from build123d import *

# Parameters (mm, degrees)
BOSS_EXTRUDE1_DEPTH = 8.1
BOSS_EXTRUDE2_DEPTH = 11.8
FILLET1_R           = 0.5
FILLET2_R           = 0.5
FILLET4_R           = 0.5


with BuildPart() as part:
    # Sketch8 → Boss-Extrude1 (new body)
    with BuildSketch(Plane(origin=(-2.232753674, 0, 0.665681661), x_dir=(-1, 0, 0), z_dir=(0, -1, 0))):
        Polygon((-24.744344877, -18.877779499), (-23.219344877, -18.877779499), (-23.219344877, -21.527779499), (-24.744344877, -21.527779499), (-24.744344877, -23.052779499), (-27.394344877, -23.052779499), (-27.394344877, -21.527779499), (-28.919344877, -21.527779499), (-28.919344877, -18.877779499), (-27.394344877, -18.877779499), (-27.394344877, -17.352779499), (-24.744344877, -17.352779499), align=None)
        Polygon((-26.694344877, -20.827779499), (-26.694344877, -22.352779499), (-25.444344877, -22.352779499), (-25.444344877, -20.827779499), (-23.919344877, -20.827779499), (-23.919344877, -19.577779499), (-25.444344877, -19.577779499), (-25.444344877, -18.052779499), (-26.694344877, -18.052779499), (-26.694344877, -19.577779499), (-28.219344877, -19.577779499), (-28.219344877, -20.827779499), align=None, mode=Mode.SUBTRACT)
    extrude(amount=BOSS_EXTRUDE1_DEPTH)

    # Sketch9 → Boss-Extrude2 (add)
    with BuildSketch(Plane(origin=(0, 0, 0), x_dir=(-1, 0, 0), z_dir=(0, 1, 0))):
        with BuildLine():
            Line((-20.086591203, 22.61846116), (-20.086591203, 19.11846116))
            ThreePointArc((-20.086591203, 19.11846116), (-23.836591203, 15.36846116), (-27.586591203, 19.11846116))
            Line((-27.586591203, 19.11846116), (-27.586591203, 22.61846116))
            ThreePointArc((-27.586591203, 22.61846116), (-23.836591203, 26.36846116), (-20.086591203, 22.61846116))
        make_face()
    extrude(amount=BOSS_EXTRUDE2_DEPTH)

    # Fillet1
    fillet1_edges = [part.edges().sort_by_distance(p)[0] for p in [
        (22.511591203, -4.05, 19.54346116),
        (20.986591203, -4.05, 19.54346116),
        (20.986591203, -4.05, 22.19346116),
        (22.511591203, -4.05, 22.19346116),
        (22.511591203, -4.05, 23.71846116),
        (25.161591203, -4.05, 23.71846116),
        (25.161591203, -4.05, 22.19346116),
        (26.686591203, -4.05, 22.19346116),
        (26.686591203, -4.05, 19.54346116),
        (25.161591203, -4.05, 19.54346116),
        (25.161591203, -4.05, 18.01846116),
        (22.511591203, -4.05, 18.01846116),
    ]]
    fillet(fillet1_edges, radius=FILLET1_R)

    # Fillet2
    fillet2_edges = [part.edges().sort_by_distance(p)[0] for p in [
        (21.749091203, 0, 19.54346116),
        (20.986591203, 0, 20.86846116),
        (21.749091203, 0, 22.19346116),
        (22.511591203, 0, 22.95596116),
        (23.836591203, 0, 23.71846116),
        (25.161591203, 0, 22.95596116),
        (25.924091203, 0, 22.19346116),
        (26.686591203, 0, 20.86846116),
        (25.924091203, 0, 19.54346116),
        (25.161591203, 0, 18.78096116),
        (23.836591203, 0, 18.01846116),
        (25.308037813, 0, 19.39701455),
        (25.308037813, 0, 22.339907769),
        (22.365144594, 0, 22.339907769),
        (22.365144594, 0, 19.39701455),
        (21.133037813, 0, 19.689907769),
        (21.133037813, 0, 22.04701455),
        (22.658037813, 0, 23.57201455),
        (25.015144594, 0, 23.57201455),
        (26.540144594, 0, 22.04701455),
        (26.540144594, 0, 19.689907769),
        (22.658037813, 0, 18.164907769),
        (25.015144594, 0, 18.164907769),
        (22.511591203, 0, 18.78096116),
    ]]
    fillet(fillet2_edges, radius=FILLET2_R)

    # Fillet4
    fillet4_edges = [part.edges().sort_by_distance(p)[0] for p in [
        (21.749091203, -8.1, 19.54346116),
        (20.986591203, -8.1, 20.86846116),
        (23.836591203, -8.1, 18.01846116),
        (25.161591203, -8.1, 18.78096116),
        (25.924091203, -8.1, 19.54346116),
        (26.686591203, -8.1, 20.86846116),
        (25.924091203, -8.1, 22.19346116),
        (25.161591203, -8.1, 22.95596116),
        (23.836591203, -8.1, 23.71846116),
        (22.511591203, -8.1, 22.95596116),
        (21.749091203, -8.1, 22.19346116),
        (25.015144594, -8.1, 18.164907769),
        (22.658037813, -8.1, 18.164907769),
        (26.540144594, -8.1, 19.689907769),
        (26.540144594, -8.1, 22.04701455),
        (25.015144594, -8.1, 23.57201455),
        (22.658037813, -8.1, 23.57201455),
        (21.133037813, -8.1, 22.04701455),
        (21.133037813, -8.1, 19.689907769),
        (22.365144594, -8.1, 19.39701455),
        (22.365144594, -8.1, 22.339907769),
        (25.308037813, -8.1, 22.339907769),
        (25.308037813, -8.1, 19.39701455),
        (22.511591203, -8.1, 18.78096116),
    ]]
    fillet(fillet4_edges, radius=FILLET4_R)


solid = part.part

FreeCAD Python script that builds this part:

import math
import FreeCAD as App
import Part
import Sketcher
from FreeCAD import Vector
Q = App.Units.Quantity


def edges_at(feature, points):
    """Names of the edges that pass closest to the given points."""
    edges = feature.Shape.Edges
    near = lambda p: min(range(len(edges)), key=lambda i: edges[i].distToShape(Part.Vertex(*p))[0])
    return sorted({f"Edge{near(p) + 1}" for p in points})

doc = App.newDocument("Part")
params = doc.addObject("Spreadsheet::Sheet", "Params")
for row, (alias, value) in enumerate([
    ("sketch1_width", "2.65 mm"),
    ("sketch1_width2", "1.25 mm"),
    ("pad1_length", "8.1 mm"),
    ("sketch2_radius", "3.75 mm"),
    ("sketch2_height", "3.5 mm"),
    ("pad2_length", "11.8 mm"),
    ("fillet_radius", "0.5 mm"),
    ("fillet2_radius", "0.5 mm"),
    ("fillet3_radius", "0.5 mm"),
], start=1):
    params.set(f"A{row}", alias)
    params.set(f"B{row}", "=" + value)
    params.setAlias(f"B{row}", alias)

body = doc.addObject("PartDesign::Body", "Body")

# Sketch on XZ plane
sketch1 = body.newObject("Sketcher::SketchObject", "Sketch")
sketch1.AttachmentSupport = (doc.getObject("XZ_Plane"), [""])
sketch1.MapMode = "FlatFace"
sketch1.addGeometry(Part.LineSegment(Vector(20.986591, 19.543461, 0), Vector(22.511591, 19.543461, 0)), False)
sketch1.addGeometry(Part.LineSegment(Vector(22.511591, 19.543461, 0), Vector(22.511591, 18.018461, 0)), False)
sketch1.addGeometry(Part.LineSegment(Vector(22.511591, 18.018461, 0), Vector(25.161591, 18.018461, 0)), False)
sketch1.addGeometry(Part.LineSegment(Vector(25.161591, 18.018461, 0), Vector(25.161591, 19.543461, 0)), False)
sketch1.addGeometry(Part.LineSegment(Vector(25.161591, 19.543461, 0), Vector(26.686591, 19.543461, 0)), False)
sketch1.addGeometry(Part.LineSegment(Vector(26.686591, 19.543461, 0), Vector(26.686591, 22.193461, 0)), False)
sketch1.addGeometry(Part.LineSegment(Vector(26.686591, 22.193461, 0), Vector(25.161591, 22.193461, 0)), False)
sketch1.addGeometry(Part.LineSegment(Vector(25.161591, 22.193461, 0), Vector(25.161591, 23.718461, 0)), False)
sketch1.addGeometry(Part.LineSegment(Vector(25.161591, 23.718461, 0), Vector(22.511591, 23.718461, 0)), False)
sketch1.addGeometry(Part.LineSegment(Vector(22.511591, 23.718461, 0), Vector(22.511591, 22.193461, 0)), False)
sketch1.addGeometry(Part.LineSegment(Vector(22.511591, 22.193461, 0), Vector(20.986591, 22.193461, 0)), False)
sketch1.addGeometry(Part.LineSegment(Vector(20.986591, 22.193461, 0), Vector(20.986591, 19.543461, 0)), False)
sketch1.addGeometry(Part.LineSegment(Vector(24.461591, 21.493461, 0), Vector(25.986591, 21.493461, 0)), False)
sketch1.addGeometry(Part.LineSegment(Vector(25.986591, 21.493461, 0), Vector(25.986591, 20.243461, 0)), False)
sketch1.addGeometry(Part.LineSegment(Vector(25.986591, 20.243461, 0), Vector(24.461591, 20.243461, 0)), False)
sketch1.addGeometry(Part.LineSegment(Vector(24.461591, 20.243461, 0), Vector(24.461591, 18.718461, 0)), False)
sketch1.addGeometry(Part.LineSegment(Vector(24.461591, 18.718461, 0), Vector(23.211591, 18.718461, 0)), False)
sketch1.addGeometry(Part.LineSegment(Vector(23.211591, 18.718461, 0), Vector(23.211591, 20.243461, 0)), False)
sketch1.addGeometry(Part.LineSegment(Vector(23.211591, 20.243461, 0), Vector(21.686591, 20.243461, 0)), False)
sketch1.addGeometry(Part.LineSegment(Vector(21.686591, 20.243461, 0), Vector(21.686591, 21.493461, 0)), False)
sketch1.addGeometry(Part.LineSegment(Vector(21.686591, 21.493461, 0), Vector(23.211591, 21.493461, 0)), False)
sketch1.addGeometry(Part.LineSegment(Vector(23.211591, 21.493461, 0), Vector(23.211591, 23.018461, 0)), False)
sketch1.addGeometry(Part.LineSegment(Vector(23.211591, 23.018461, 0), Vector(24.461591, 23.018461, 0)), False)
sketch1.addGeometry(Part.LineSegment(Vector(24.461591, 23.018461, 0), Vector(24.461591, 21.493461, 0)), False)
sketch1.addConstraint(Sketcher.Constraint("Coincident", 0, 2, 1, 1))
sketch1.addConstraint(Sketcher.Constraint("Coincident", 1, 2, 2, 1))
sketch1.addConstraint(Sketcher.Constraint("Coincident", 2, 2, 3, 1))
sketch1.addConstraint(Sketcher.Constraint("Coincident", 3, 2, 4, 1))
sketch1.addConstraint(Sketcher.Constraint("Coincident", 4, 2, 5, 1))
sketch1.addConstraint(Sketcher.Constraint("Coincident", 5, 2, 6, 1))
sketch1.addConstraint(Sketcher.Constraint("Coincident", 6, 2, 7, 1))
sketch1.addConstraint(Sketcher.Constraint("Coincident", 7, 2, 8, 1))
sketch1.addConstraint(Sketcher.Constraint("Coincident", 8, 2, 9, 1))
sketch1.addConstraint(Sketcher.Constraint("Coincident", 9, 2, 10, 1))
sketch1.addConstraint(Sketcher.Constraint("Coincident", 10, 2, 11, 1))
sketch1.addConstraint(Sketcher.Constraint("Coincident", 11, 2, 0, 1))
sketch1.addConstraint(Sketcher.Constraint("Coincident", 12, 2, 13, 1))
sketch1.addConstraint(Sketcher.Constraint("Coincident", 13, 2, 14, 1))
sketch1.addConstraint(Sketcher.Constraint("Coincident", 14, 2, 15, 1))
sketch1.addConstraint(Sketcher.Constraint("Coincident", 15, 2, 16, 1))
sketch1.addConstraint(Sketcher.Constraint("Coincident", 16, 2, 17, 1))
sketch1.addConstraint(Sketcher.Constraint("Coincident", 17, 2, 18, 1))
sketch1.addConstraint(Sketcher.Constraint("Coincident", 18, 2, 19, 1))
sketch1.addConstraint(Sketcher.Constraint("Coincident", 19, 2, 20, 1))
sketch1.addConstraint(Sketcher.Constraint("Coincident", 20, 2, 21, 1))
sketch1.addConstraint(Sketcher.Constraint("Coincident", 21, 2, 22, 1))
sketch1.addConstraint(Sketcher.Constraint("Coincident", 22, 2, 23, 1))
sketch1.addConstraint(Sketcher.Constraint("Coincident", 23, 2, 12, 1))
sketch1.addConstraint(Sketcher.Constraint("Horizontal", 0))
sketch1.addConstraint(Sketcher.Constraint("Vertical", 1))
sketch1.addConstraint(Sketcher.Constraint("Horizontal", 2))
sketch1.addConstraint(Sketcher.Constraint("Vertical", 3))
sketch1.addConstraint(Sketcher.Constraint("Horizontal", 4))
sketch1.addConstraint(Sketcher.Constraint("Vertical", 5))
sketch1.addConstraint(Sketcher.Constraint("Horizontal", 6))
sketch1.addConstraint(Sketcher.Constraint("Vertical", 7))
sketch1.addConstraint(Sketcher.Constraint("Horizontal", 8))
sketch1.addConstraint(Sketcher.Constraint("Vertical", 9))
sketch1.addConstraint(Sketcher.Constraint("Horizontal", 10))
sketch1.addConstraint(Sketcher.Constraint("Vertical", 11))
sketch1.addConstraint(Sketcher.Constraint("Horizontal", 12))
sketch1.addConstraint(Sketcher.Constraint("Vertical", 13))
sketch1.addConstraint(Sketcher.Constraint("Horizontal", 14))
sketch1.addConstraint(Sketcher.Constraint("Vertical", 15))
sketch1.addConstraint(Sketcher.Constraint("Horizontal", 16))
sketch1.addConstraint(Sketcher.Constraint("Vertical", 17))
sketch1.addConstraint(Sketcher.Constraint("Horizontal", 18))
sketch1.addConstraint(Sketcher.Constraint("Vertical", 19))
sketch1.addConstraint(Sketcher.Constraint("Horizontal", 20))
sketch1.addConstraint(Sketcher.Constraint("Vertical", 21))
sketch1.addConstraint(Sketcher.Constraint("Horizontal", 22))
sketch1.addConstraint(Sketcher.Constraint("Vertical", 23))
sketch1.addConstraint(Sketcher.Constraint("Horizontal", 0, 2, 3, 2))
sketch1.addConstraint(Sketcher.Constraint("Horizontal", 6, 2, 9, 2))
sketch1.addConstraint(Sketcher.Constraint("Horizontal", 14, 2, 17, 2))
sketch1.addConstraint(Sketcher.Constraint("Horizontal", 12, 2, 19, 2))
sketch1.addConstraint(Sketcher.Constraint("Vertical", 3, 2, 6, 2))
sketch1.addConstraint(Sketcher.Constraint("Vertical", 1, 2, 8, 2))
sketch1.addConstraint(Sketcher.Constraint("Vertical", 17, 2, 20, 2))
sketch1.addConstraint(Sketcher.Constraint("Vertical", 15, 2, 22, 2))
sketch1.addConstraint(Sketcher.Constraint("Equal", 0, 4))
sketch1.addConstraint(Sketcher.Constraint("Equal", 10, 12))
sketch1.addConstraint(Sketcher.Constraint("Equal", 14, 18))
sketch1.addConstraint(Sketcher.Constraint("Equal", 20, 1))
sketch1.addConstraint(Sketcher.Constraint("Equal", 8, 5))
sketch1.addConstraint(Sketcher.Constraint("Equal", 3, 7))
sketch1.addConstraint(Sketcher.Constraint("Equal", 22, 13))
sketch1.addConstraint(Sketcher.Constraint("Equal", 9, 15))
sketch1.addConstraint(Sketcher.Constraint("Equal", 17, 21))
sketch1.addConstraint(Sketcher.Constraint("DistanceX", 2, 1, 2, 2, Q("2.65 mm")))
sketch1.addConstraint(Sketcher.Constraint("DistanceX", 16, 2, 16, 1, Q("1.25 mm")))
sketch1.addConstraint(Sketcher.Constraint("DistanceX", 12, 2, 5, 2, Q("0.7 mm")))
sketch1.addConstraint(Sketcher.Constraint("DistanceY", 12, 2, 5, 2, Q("0.7 mm")))
sketch1.addConstraint(Sketcher.Constraint("DistanceX", 0, 1, 0, 2, Q("1.525 mm")))
sketch1.addConstraint(Sketcher.Constraint("DistanceX", -1, 1, 0, 2, Q("22.511591 mm")))
sketch1.addConstraint(Sketcher.Constraint("DistanceY", -1, 1, 0, 2, Q("19.543461 mm")))
sketch1.setExpression("Constraints[65]", "Params.sketch1_width")
sketch1.setExpression("Constraints[66]", "Params.sketch1_width2")
pad1 = body.newObject("PartDesign::Pad", "Pad")
pad1.Profile = sketch1
pad1.setExpression("Length", "Params.pad1_length")

# Sketch on XZ plane
sketch2 = body.newObject("Sketcher::SketchObject", "Sketch001")
sketch2.AttachmentSupport = (doc.getObject("XZ_Plane"), [""])
sketch2.MapMode = "FlatFace"
sketch2.addGeometry(Part.LineSegment(Vector(20.086591, 19.118461, 0), Vector(20.086591, 22.618461, 0)), False)
sketch2.addGeometry(Part.ArcOfCircle(Part.Circle(Vector(23.836591, 22.618461, 0), Vector(0, 0, 1), 3.75), math.radians(0), math.radians(180)), False)
sketch2.addGeometry(Part.LineSegment(Vector(27.586591, 22.618461, 0), Vector(27.586591, 19.118461, 0)), False)
sketch2.addGeometry(Part.ArcOfCircle(Part.Circle(Vector(23.836591, 19.118461, 0), Vector(0, 0, 1), 3.75), math.radians(180), math.radians(360)), False)
sketch2.addConstraint(Sketcher.Constraint("Tangent", 0, 2, 1, 2))
sketch2.addConstraint(Sketcher.Constraint("Tangent", 1, 1, 2, 1))
sketch2.addConstraint(Sketcher.Constraint("Tangent", 2, 2, 3, 2))
sketch2.addConstraint(Sketcher.Constraint("Tangent", 3, 1, 0, 1))
sketch2.addConstraint(Sketcher.Constraint("Vertical", 0))
sketch2.addConstraint(Sketcher.Constraint("Vertical", 2))
sketch2.addConstraint(Sketcher.Constraint("Radius", 1, Q("3.75 mm")))
sketch2.addConstraint(Sketcher.Constraint("DistanceY", 0, 1, 0, 2, Q("3.5 mm")))
sketch2.addConstraint(Sketcher.Constraint("DistanceX", -1, 1, 1, 3, Q("23.836591 mm")))
sketch2.addConstraint(Sketcher.Constraint("DistanceY", -1, 1, 1, 3, Q("22.618461 mm")))
sketch2.setExpression("Constraints[6]", "Params.sketch2_radius")
sketch2.setExpression("Constraints[7]", "Params.sketch2_height")
pad2 = body.newObject("PartDesign::Pad", "Pad001")
pad2.Profile = sketch2
pad2.setExpression("Length", "Params.pad2_length")
pad2.Reversed = True
doc.recompute()

fillet = body.newObject("PartDesign::Fillet", "Fillet")
fillet.Base = (pad2, edges_at(pad2, [
    (22.512, -4.05, 19.543),
    (20.987, -4.05, 19.543),
    (20.987, -4.05, 22.193),
    (22.512, -4.05, 22.193),
    (22.512, -4.05, 23.718),
    (25.162, -4.05, 23.718),
    (25.162, -4.05, 22.193),
    (26.687, -4.05, 22.193),
    (26.687, -4.05, 19.543),
    (25.162, -4.05, 19.543),
    (25.162, -4.05, 18.018),
    (22.512, -4.05, 18.018),
]))
fillet.setExpression("Radius", "Params.fillet_radius")
doc.recompute()

fillet2 = body.newObject("PartDesign::Fillet", "Fillet001")
fillet2.Base = (fillet, edges_at(fillet, [
    (21.749, 0, 19.543),
    (20.987, 0, 20.868),
    (21.749, 0, 22.193),
    (22.512, 0, 22.956),
    (23.837, 0, 23.718),
    (25.162, 0, 22.956),
    (25.924, 0, 22.193),
    (26.687, 0, 20.868),
    (25.924, 0, 19.543),
    (25.162, 0, 18.781),
    (23.837, 0, 18.018),
    (25.308, 0, 19.397),
    (25.308, 0, 22.34),
    (22.365, 0, 22.34),
    (22.365, 0, 19.397),
    (21.133, 0, 19.69),
    (21.133, 0, 22.047),
    (22.658, 0, 23.572),
    (25.015, 0, 23.572),
    (26.54, 0, 22.047),
    (26.54, 0, 19.69),
    (22.658, 0, 18.165),
    (25.015, 0, 18.165),
    (22.512, 0, 18.781),
]))
fillet2.setExpression("Radius", "Params.fillet2_radius")
doc.recompute()

fillet3 = body.newObject("PartDesign::Fillet", "Fillet002")
fillet3.Base = (fillet2, edges_at(fillet2, [
    (21.749, -8.1, 19.543),
    (20.987, -8.1, 20.868),
    (23.837, -8.1, 18.018),
    (25.162, -8.1, 18.781),
    (25.924, -8.1, 19.543),
    (26.687, -8.1, 20.868),
    (25.924, -8.1, 22.193),
    (25.162, -8.1, 22.956),
    (23.837, -8.1, 23.718),
    (22.512, -8.1, 22.956),
    (21.749, -8.1, 22.193),
    (25.015, -8.1, 18.165),
    (22.658, -8.1, 18.165),
    (26.54, -8.1, 19.69),
    (26.54, -8.1, 22.047),
    (25.015, -8.1, 23.572),
    (22.658, -8.1, 23.572),
    (21.133, -8.1, 22.047),
    (21.133, -8.1, 19.69),
    (22.365, -8.1, 19.397),
    (22.365, -8.1, 22.34),
    (25.308, -8.1, 22.34),
    (25.308, -8.1, 19.397),
    (22.512, -8.1, 18.781),
]))
fillet3.setExpression("Radius", "Params.fillet3_radius")

doc.recompute()
